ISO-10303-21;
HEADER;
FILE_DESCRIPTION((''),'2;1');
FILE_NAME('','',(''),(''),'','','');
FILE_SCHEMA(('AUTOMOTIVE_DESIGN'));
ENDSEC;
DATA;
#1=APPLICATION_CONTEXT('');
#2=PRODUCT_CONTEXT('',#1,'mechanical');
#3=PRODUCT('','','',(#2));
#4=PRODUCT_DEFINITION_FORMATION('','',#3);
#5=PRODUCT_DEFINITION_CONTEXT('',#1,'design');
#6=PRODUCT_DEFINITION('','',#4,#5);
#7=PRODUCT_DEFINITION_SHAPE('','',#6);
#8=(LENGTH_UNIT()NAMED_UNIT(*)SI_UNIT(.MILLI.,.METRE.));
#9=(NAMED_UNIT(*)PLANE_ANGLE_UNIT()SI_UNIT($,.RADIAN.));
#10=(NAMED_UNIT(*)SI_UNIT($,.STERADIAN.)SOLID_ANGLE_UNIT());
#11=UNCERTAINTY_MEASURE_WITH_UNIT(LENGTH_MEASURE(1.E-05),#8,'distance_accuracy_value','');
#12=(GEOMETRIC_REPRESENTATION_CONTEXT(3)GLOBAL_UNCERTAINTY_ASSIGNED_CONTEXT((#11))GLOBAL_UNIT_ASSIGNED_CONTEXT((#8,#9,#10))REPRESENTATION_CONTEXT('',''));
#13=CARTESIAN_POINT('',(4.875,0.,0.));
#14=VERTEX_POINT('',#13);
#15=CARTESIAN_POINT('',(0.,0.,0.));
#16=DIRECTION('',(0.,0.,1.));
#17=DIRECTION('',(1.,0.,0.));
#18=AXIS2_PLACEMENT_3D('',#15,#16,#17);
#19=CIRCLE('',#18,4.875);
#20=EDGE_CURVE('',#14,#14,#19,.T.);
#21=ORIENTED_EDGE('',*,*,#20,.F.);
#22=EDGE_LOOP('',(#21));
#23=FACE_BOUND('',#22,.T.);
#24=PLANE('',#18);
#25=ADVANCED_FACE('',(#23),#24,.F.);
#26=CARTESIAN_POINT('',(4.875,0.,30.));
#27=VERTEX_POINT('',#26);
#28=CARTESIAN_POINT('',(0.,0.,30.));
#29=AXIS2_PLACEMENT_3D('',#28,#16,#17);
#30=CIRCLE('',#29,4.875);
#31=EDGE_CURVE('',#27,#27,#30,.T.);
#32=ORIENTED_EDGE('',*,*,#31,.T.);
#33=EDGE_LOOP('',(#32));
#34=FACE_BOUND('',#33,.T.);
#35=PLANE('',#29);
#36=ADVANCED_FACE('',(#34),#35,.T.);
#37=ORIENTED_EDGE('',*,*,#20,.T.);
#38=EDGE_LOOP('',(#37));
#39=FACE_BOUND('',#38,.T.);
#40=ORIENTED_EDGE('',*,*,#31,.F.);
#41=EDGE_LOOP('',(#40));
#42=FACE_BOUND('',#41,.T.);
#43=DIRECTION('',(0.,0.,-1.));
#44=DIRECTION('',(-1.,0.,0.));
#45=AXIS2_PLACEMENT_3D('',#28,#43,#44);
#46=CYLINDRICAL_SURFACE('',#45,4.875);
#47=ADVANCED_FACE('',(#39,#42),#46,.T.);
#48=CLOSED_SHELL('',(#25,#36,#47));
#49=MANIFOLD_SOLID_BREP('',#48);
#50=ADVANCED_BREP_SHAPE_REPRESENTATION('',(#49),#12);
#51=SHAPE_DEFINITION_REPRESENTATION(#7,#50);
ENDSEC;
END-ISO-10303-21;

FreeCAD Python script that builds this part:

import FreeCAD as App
import Part
import Sketcher
from FreeCAD import Vector

doc = App.newDocument("Part")
params = doc.addObject("Spreadsheet::Sheet", "Params")
for row, (alias, value) in enumerate([
    ("sketch1_diameter", "9.75 mm"),
    ("pad1_length", "30 mm"),
], start=1):
    params.set(f"A{row}", alias)
    params.set(f"B{row}", "=" + value)
    params.setAlias(f"B{row}", alias)

body = doc.addObject("PartDesign::Body", "Body")

# Sketch on XY plane
sketch1 = body.newObject("Sketcher::SketchObject", "Sketch")
sketch1.AttachmentSupport = (doc.getObject("XY_Plane"), [""])
sketch1.MapMode = "FlatFace"
sketch1.addGeometry(Part.Circle(Vector(0, 0, 0), Vector(0, 0, 1), 4.9), False)
sketch1.addConstraint(Sketcher.Constraint("Coincident", 0, 3, -1, 1))
sketch1.addConstraint(Sketcher.Constraint("Diameter", 0, 9.75))
sketch1.setExpression("Constraints[1]", "Params.sketch1_diameter")
pad1 = body.newObject("PartDesign::Pad", "Pad")
pad1.Profile = sketch1
pad1.setExpression("Length", "Params.pad1_length")

doc.recompute()
